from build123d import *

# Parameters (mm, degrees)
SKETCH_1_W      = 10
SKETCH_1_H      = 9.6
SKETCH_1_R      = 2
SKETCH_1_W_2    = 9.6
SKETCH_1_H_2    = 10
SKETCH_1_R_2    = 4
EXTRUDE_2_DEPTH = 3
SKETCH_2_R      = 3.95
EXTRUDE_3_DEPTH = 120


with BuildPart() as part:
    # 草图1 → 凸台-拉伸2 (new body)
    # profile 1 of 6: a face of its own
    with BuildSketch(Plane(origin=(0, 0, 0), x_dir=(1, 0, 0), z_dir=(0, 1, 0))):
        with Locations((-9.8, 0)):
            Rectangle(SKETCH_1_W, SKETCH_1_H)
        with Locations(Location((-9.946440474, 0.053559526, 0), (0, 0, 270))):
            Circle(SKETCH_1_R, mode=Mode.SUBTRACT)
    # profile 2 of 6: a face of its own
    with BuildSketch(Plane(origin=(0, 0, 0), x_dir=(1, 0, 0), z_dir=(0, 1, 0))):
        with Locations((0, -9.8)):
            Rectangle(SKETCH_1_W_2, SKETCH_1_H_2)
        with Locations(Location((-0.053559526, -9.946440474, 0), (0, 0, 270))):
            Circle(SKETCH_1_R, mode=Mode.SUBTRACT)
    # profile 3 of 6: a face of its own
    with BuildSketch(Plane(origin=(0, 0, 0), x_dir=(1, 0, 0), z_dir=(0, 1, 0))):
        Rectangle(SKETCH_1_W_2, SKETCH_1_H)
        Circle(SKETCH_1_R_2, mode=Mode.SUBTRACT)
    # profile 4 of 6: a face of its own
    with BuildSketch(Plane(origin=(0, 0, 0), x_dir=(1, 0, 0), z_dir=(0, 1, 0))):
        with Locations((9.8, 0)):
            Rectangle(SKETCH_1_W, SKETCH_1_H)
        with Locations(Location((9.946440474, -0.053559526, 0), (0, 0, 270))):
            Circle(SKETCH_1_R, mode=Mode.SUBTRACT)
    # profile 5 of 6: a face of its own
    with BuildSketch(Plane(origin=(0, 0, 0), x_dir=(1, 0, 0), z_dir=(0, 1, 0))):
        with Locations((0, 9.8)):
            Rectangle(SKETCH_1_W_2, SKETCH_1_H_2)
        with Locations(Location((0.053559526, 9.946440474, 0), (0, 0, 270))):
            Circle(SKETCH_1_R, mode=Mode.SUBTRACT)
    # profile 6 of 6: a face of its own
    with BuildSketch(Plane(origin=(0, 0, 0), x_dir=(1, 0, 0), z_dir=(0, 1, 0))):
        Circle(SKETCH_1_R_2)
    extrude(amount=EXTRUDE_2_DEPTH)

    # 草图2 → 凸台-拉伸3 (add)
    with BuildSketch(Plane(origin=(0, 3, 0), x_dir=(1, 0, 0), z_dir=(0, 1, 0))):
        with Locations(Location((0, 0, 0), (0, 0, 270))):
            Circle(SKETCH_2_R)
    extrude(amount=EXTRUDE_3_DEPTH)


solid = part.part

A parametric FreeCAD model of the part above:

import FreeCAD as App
import Part
import Sketcher

doc = App.newDocument("Part")
body = doc.addObject("PartDesign::Body", "Body")

# Sketch on XZ plane
sketch1 = body.newObject("Sketcher::SketchObject", "Sketch")
sketch1.AttachmentSupport = (doc.getObject("XZ_Plane"), [""])
sketch1.MapMode = "FlatFace"
sketch1.addGeometry(Part.LineSegment(App.Vector(-14.8, -4.8, 0), App.Vector(-14.8, 4.8, 0)), False)
sketch1.addGeometry(Part.LineSegment(App.Vector(-14.8, 4.8, 0), App.Vector(-4.8, 4.8, 0)), False)
sketch1.addGeometry(Part.LineSegment(App.Vector(-4.8, 4.8, 0), App.Vector(-4.8, 14.8, 0)), False)
sketch1.addGeometry(Part.LineSegment(App.Vector(-4.8, 14.8, 0), App.Vector(4.8, 14.8, 0)), False)
sketch1.addGeometry(Part.LineSegment(App.Vector(4.8, 14.8, 0), App.Vector(4.8, 4.8, 0)), False)
sketch1.addGeometry(Part.LineSegment(App.Vector(4.8, 4.8, 0), App.Vector(14.8, 4.8, 0)), False)
sketch1.addGeometry(Part.LineSegment(App.Vector(14.8, 4.8, 0), App.Vector(14.8, -4.8, 0)), False)
sketch1.addGeometry(Part.LineSegment(App.Vector(14.8, -4.8, 0), App.Vector(4.8, -4.8, 0)), False)
sketch1.addGeometry(Part.LineSegment(App.Vector(4.8, -4.8, 0), App.Vector(4.8, -14.8, 0)), False)
sketch1.addGeometry(Part.LineSegment(App.Vector(4.8, -14.8, 0), App.Vector(-4.8, -14.8, 0)), False)
sketch1.addGeometry(Part.LineSegment(App.Vector(-4.8, -14.8, 0), App.Vector(-4.8, -4.8, 0)), False)
sketch1.addGeometry(Part.LineSegment(App.Vector(-4.8, -4.8, 0), App.Vector(-14.8, -4.8, 0)), False)
sketch1.addGeometry(Part.Circle(App.Vector(-9.9, -0.1, 0), App.Vector(0, 0, 1), 2), False)
sketch1.addGeometry(Part.Circle(App.Vector(-0.1, 9.9, 0), App.Vector(0, 0, 1), 2), False)
sketch1.addGeometry(Part.Circle(App.Vector(0.1, -9.9, 0), App.Vector(0, 0, 1), 2), False)
sketch1.addGeometry(Part.Circle(App.Vector(9.9, 0.1, 0), App.Vector(0, 0, 1), 2), False)
sketch1.addConstraint(Sketcher.Constraint("Coincident", 0, 2, 1, 1))
sketch1.addConstraint(Sketcher.Constraint("Coincident", 1, 2, 2, 1))
sketch1.addConstraint(Sketcher.Constraint("Coincident", 2, 2, 3, 1))
sketch1.addConstraint(Sketcher.Constraint("Coincident", 3, 2, 4, 1))
sketch1.addConstraint(Sketcher.Constraint("Coincident", 4, 2, 5, 1))
sketch1.addConstraint(Sketcher.Constraint("Coincident", 5, 2, 6, 1))
sketch1.addConstraint(Sketcher.Constraint("Coincident", 6, 2, 7, 1))
sketch1.addConstraint(Sketcher.Constraint("Coincident", 7, 2, 8, 1))
sketch1.addConstraint(Sketcher.Constraint("Coincident", 8, 2, 9, 1))
sketch1.addConstraint(Sketcher.Constraint("Coincident", 9, 2, 10, 1))
sketch1.addConstraint(Sketcher.Constraint("Coincident", 10, 2, 11, 1))
sketch1.addConstraint(Sketcher.Constraint("Coincident", 11, 2, 0, 1))
sketch1.addConstraint(Sketcher.Constraint("Vertical", 0))
sketch1.addConstraint(Sketcher.Constraint("Horizontal", 1))
sketch1.addConstraint(Sketcher.Constraint("Vertical", 2))
sketch1.addConstraint(Sketcher.Constraint("Horizontal", 3))
sketch1.addConstraint(Sketcher.Constraint("Vertical", 4))
sketch1.addConstraint(Sketcher.Constraint("Horizontal", 5))
sketch1.addConstraint(Sketcher.Constraint("Vertical", 6))
sketch1.addConstraint(Sketcher.Constraint("Horizontal", 7))
sketch1.addConstraint(Sketcher.Constraint("Vertical", 8))
sketch1.addConstraint(Sketcher.Constraint("Horizontal", 9))
sketch1.addConstraint(Sketcher.Constraint("Vertical", 10))
sketch1.addConstraint(Sketcher.Constraint("Horizontal", 11))
sketch1.addConstraint(Sketcher.Constraint("Equal", 12, 13))
sketch1.addConstraint(Sketcher.Constraint("Equal", 13, 14))
sketch1.addConstraint(Sketcher.Constraint("Equal", 14, 15))
sketch1.addConstraint(Sketcher.Constraint("Symmetric", 13, 3, 14, 3, -1, 1))
sketch1.addConstraint(Sketcher.Constraint("Symmetric", 12, 3, 15, 3, -1, 1))
sketch1.addConstraint(Sketcher.Constraint("Symmetric", 0, 2, 6, 2, -1, 1))
sketch1.addConstraint(Sketcher.Constraint("Symmetric", 2, 2, 8, 2, -1, 1))
sketch1.addConstraint(Sketcher.Constraint("Symmetric", 4, 2, 10, 2, -1, 1))
sketch1.addConstraint(Sketcher.Constraint("Symmetric", 1, 2, 4, 2, -2))
sketch1.addConstraint(Sketcher.Constraint("Equal", 9, 0))
sketch1.addConstraint(Sketcher.Constraint("Equal", 11, 2))
sketch1.addConstraint(Sketcher.Constraint("Diameter", 12, 4.0))
sketch1.addConstraint(Sketcher.Constraint("DistanceX", 1, 1, 1, 2, 10.0))
sketch1.addConstraint(Sketcher.Constraint("DistanceX", 3, 1, 3, 2, 9.6))
sketch1.addConstraint(Sketcher.Constraint("DistanceY", 12, 3, 13, 3, 10.0))
sketch1.addConstraint(Sketcher.Constraint("DistanceX", 12, 3, 14, 3, 10.0))
sketch1.addConstraint(Sketcher.Constraint("DistanceX", 12, 3, -1, 1, 9.94644))
sketch1.addConstraint(Sketcher.Constraint("DistanceY", 12, 3, -1, 1, 0.05356))
pad1 = body.newObject("PartDesign::Pad", "Pad")
pad1.Profile = sketch1
pad1.Length = 3
pad1.Reversed = True

# Sketch on XZ plane
sketch2 = body.newObject("Sketcher::SketchObject", "Sketch001")
sketch2.AttachmentSupport = (doc.getObject("XZ_Plane"), [""])
sketch2.MapMode = "FlatFace"
sketch2.AttachmentOffset = App.Placement(App.Vector(0, 0, -3), App.Rotation())
sketch2.addGeometry(Part.Circle(App.Vector(0, 0, 0), App.Vector(0, 0, 1), 4), False)
sketch2.addConstraint(Sketcher.Constraint("Coincident", 0, 3, -1, 1))
sketch2.addConstraint(Sketcher.Constraint("Diameter", 0, 7.9))
pad2 = body.newObject("PartDesign::Pad", "Pad001")
pad2.Profile = sketch2
pad2.Length = 120
pad2.Reversed = True

doc.recompute()
